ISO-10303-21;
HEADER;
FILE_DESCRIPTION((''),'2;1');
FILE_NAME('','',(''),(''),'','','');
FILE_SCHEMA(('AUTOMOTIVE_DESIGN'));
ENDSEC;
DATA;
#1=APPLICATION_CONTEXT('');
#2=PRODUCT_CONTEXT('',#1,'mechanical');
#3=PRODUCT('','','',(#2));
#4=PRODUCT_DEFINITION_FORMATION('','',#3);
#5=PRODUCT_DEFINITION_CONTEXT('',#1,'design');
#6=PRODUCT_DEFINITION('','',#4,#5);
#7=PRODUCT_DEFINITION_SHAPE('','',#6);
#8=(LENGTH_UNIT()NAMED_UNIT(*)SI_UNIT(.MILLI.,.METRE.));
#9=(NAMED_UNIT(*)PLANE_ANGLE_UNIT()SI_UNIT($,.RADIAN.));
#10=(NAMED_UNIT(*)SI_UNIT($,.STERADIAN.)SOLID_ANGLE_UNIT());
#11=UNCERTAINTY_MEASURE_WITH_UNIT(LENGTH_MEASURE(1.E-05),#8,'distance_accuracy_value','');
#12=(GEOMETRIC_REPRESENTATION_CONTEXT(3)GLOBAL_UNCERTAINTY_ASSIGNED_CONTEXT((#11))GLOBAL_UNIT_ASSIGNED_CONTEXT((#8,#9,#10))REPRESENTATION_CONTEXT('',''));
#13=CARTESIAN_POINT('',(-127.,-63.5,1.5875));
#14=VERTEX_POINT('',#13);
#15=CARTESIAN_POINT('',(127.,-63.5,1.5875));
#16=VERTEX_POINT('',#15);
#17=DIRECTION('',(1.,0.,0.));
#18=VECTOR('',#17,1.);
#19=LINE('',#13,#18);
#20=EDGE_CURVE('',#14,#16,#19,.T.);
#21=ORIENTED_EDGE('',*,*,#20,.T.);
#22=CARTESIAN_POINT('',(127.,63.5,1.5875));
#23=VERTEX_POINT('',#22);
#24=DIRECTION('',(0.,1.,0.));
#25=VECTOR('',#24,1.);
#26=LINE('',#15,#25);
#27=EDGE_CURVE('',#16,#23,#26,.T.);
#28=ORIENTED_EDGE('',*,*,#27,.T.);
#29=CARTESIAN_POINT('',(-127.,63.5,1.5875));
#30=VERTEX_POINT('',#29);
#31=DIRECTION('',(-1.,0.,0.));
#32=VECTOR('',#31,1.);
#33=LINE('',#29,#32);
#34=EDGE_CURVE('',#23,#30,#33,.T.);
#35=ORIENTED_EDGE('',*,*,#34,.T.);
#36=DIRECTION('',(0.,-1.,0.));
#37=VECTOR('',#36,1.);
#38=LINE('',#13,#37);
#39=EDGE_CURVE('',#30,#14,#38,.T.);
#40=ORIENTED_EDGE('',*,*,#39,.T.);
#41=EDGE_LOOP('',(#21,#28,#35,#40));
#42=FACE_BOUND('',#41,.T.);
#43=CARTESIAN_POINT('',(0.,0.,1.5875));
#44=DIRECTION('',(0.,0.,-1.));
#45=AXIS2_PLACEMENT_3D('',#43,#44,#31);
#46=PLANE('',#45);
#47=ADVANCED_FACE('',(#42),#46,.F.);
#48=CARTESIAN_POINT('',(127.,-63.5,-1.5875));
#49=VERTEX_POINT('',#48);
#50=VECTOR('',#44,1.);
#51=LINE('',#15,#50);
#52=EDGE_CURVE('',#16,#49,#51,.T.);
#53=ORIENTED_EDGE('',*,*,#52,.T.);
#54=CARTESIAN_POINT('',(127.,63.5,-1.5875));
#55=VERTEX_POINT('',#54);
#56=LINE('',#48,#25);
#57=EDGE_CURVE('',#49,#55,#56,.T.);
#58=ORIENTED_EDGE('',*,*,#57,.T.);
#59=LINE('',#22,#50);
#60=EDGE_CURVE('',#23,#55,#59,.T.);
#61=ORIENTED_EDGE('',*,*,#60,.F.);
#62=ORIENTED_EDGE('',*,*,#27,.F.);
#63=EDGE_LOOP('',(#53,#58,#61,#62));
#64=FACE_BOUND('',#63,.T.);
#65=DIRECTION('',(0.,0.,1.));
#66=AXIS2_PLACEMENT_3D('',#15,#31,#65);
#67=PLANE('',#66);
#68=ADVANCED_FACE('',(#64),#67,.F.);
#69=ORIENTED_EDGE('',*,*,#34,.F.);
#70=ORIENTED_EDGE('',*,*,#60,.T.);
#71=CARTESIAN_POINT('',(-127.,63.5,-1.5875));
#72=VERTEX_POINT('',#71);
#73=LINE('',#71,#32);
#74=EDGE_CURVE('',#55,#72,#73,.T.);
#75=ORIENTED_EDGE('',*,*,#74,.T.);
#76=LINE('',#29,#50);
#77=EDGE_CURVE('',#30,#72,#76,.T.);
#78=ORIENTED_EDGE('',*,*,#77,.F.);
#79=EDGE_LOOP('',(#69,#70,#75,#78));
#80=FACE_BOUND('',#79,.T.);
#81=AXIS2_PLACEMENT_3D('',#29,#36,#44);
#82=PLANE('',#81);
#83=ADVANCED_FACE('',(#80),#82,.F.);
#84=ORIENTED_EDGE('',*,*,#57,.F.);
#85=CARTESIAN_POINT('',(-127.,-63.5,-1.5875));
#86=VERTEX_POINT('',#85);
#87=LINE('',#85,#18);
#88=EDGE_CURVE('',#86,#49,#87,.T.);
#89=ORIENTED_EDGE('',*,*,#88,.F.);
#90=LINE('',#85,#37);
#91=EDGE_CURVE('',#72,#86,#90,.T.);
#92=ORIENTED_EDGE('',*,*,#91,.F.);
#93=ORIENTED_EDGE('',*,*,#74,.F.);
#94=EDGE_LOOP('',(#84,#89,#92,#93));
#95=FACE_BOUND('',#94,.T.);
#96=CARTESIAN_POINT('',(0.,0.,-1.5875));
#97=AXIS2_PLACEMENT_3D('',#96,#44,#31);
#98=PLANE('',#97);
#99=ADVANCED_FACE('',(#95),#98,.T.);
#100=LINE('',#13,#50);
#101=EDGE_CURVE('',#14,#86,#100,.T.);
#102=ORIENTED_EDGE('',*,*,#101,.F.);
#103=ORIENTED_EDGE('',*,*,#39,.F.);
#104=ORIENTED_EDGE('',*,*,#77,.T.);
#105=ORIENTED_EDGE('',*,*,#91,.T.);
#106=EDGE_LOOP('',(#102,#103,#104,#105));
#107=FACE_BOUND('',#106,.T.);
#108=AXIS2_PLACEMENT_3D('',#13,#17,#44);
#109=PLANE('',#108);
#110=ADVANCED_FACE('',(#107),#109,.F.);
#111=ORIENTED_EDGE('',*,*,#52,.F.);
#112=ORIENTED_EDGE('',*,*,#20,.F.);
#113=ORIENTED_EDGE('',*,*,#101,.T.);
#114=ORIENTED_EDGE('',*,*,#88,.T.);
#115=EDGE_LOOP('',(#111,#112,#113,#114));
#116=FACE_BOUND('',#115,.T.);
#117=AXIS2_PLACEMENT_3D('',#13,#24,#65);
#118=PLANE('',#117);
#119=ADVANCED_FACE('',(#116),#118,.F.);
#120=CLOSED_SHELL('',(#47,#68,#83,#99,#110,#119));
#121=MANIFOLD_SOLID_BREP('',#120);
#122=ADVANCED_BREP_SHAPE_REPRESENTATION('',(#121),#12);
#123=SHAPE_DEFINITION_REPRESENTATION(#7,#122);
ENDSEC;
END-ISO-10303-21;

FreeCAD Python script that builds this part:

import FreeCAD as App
import Part
import Sketcher

V = App.Vector
Q = App.Units.Quantity

doc = App.newDocument("Part")
body = doc.addObject("PartDesign::Body", "Body")

# Sketch on XY plane
sketch1 = doc.addObject("Sketcher::SketchObject", "Sketch")
body.addObject(sketch1)
sketch1.AttachmentSupport = (doc.XY_Plane, [""])
sketch1.MapMode = "FlatFace"
sketch1.addGeometry([
    Part.LineSegment(V(-127, 64, 0), V(-127, -64, 0)),
    Part.LineSegment(V(-127, -64, 0), V(127, -64, 0)),
    Part.LineSegment(V(127, -64, 0), V(127, 64, 0)),
    Part.LineSegment(V(127, 64, 0), V(-127, 64, 0)),
], False)
sketch1.addConstraint([
    Sketcher.Constraint("Coincident", 0, 2, 1, 1),
    Sketcher.Constraint("Coincident", 1, 2, 2, 1),
    Sketcher.Constraint("Coincident", 2, 2, 3, 1),
    Sketcher.Constraint("Coincident", 3, 2, 0, 1),
    Sketcher.Constraint("Vertical", 0),
    Sketcher.Constraint("Horizontal", 1),
    Sketcher.Constraint("Vertical", 2),
    Sketcher.Constraint("Horizontal", 3),
    Sketcher.Constraint("Symmetric", 0, 2, 2, 2, -1, 1),
    Sketcher.Constraint("DistanceX", 1, 1, 1, 2, Q("10 in")),
    Sketcher.Constraint("DistanceY", 0, 2, 0, 1, Q("5 in")),
])
pad1 = doc.addObject("PartDesign::Pad", "Pad")
body.addObject(pad1)
pad1.Profile = sketch1
pad1.Length = Q("0.125 in")
pad1.Midplane = True

doc.recompute()
